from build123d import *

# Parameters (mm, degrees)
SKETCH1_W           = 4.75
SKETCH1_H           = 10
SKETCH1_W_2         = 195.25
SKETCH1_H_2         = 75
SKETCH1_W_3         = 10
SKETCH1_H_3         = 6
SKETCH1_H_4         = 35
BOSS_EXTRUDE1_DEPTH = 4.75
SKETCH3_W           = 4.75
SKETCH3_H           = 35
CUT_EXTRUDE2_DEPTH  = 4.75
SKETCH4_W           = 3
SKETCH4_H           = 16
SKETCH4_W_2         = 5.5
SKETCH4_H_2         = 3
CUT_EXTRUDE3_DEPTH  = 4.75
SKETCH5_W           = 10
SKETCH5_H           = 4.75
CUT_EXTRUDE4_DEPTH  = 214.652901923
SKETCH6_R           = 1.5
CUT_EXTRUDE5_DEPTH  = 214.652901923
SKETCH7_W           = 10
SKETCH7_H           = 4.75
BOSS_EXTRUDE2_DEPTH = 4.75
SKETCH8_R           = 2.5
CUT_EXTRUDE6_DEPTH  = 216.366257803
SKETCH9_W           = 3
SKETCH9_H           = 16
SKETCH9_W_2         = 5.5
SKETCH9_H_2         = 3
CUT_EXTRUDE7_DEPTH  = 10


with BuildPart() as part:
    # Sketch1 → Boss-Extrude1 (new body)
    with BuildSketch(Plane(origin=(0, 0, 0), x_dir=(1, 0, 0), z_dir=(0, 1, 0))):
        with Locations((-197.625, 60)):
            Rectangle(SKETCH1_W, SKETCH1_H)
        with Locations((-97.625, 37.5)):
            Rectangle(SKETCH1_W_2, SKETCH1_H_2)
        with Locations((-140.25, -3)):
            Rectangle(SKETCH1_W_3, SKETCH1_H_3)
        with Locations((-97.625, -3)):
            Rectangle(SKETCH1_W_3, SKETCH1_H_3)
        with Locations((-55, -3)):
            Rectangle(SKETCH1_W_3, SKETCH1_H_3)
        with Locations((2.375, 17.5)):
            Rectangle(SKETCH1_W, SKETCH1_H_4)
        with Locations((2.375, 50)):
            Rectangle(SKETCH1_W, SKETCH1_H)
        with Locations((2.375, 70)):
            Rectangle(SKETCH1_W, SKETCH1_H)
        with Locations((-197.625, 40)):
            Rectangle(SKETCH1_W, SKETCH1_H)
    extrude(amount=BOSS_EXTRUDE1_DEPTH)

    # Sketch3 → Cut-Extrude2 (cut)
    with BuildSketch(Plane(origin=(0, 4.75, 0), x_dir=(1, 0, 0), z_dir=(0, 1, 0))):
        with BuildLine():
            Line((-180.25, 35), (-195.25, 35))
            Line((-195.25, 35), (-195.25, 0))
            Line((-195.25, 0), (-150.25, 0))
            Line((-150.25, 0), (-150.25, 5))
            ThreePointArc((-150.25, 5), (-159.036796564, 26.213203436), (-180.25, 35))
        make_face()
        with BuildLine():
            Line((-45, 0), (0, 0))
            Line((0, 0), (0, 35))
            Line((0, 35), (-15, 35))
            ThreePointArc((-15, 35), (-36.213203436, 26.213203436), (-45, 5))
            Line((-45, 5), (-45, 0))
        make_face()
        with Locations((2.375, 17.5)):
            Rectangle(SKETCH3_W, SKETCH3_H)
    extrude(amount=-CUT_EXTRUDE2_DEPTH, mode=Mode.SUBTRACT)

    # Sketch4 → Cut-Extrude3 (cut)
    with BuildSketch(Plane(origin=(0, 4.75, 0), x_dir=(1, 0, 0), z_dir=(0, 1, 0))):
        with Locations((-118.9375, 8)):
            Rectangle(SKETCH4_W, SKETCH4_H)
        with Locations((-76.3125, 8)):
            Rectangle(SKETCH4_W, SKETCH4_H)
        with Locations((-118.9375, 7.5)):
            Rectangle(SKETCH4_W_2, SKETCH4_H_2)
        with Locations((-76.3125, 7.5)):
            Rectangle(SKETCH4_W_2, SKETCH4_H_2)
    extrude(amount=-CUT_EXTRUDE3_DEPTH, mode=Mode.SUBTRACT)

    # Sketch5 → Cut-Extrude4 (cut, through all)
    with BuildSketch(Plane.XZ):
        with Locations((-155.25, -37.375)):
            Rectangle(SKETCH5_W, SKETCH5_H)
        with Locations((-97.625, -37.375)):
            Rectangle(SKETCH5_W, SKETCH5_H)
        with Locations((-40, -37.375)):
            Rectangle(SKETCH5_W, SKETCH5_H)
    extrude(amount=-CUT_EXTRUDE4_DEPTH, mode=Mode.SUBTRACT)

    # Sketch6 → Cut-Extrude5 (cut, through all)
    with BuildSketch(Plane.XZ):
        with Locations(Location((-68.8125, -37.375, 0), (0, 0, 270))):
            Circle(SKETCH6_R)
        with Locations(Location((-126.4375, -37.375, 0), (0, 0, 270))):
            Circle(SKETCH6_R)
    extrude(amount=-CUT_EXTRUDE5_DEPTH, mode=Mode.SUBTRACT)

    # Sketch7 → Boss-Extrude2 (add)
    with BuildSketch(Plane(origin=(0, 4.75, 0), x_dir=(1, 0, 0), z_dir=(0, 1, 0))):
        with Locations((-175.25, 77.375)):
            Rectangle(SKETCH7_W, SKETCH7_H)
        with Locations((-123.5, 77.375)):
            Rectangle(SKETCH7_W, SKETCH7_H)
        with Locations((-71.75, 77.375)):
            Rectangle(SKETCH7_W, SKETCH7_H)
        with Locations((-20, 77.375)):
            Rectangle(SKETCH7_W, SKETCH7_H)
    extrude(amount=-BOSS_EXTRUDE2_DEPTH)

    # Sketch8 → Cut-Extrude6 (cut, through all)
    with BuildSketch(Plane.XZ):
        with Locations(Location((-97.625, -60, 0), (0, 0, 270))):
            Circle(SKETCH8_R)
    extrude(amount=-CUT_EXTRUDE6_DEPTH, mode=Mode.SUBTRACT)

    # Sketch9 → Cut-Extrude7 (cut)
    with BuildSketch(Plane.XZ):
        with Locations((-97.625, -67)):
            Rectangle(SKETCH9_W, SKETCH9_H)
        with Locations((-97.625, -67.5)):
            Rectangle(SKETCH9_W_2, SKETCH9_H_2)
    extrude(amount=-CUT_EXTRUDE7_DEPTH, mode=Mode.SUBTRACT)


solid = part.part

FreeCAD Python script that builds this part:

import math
import FreeCAD as App
import Part
import Sketcher
from FreeCAD import Vector


def add_polygon(sketch, points):
    """Adds a closed chain of lines whose ends are joined by coincident constraints."""
    first, n = sketch.GeometryCount, len(points)
    for a, b in zip(points, points[1:] + points[:1]):
        sketch.addGeometry(Part.LineSegment(App.Vector(*a, 0), App.Vector(*b, 0)), False)
    for i in range(n):
        sketch.addConstraint(Sketcher.Constraint("Coincident", first + i, 2, first + (i + 1) % n, 1))

doc = App.newDocument("Part")
body = doc.addObject("PartDesign::Body", "Body")

# Sketch on XZ plane
sketch1 = body.newObject("Sketcher::SketchObject", "Sketch")
sketch1.AttachmentSupport = (doc.getObject("XZ_Plane"), [""])
sketch1.MapMode = "FlatFace"
add_polygon(sketch1, [(-200, -65), (-200, -55), (-195.2, -55), (-195.2, -45), (-200, -45), (-200, -35), (-195.2, -35), (-195.2, 0), (-145.2, 0), (-145.2, 6), (-135.2, 6), (-135.2, 0), (-102.6, 0), (-102.6, 6), (-92.6, 6), (-92.6, 0), (-60, 0), (-60, 6), (-50, 6), (-50, 0), (4.8, 0), (4.8, -35), (0, -35), (0, -45), (4.8, -45), (4.8, -55), (0, -55), (0, -65), (4.8, -65), (4.8, -75), (-195.2, -75), (-195.2, -65)])  # lines 0-31
sketch1.addConstraint([
    Sketcher.Constraint("Vertical", 0),
    Sketcher.Constraint("Horizontal", 1),
    Sketcher.Constraint("Vertical", 2),
    Sketcher.Constraint("Horizontal", 3),
    Sketcher.Constraint("Vertical", 4),
    Sketcher.Constraint("Horizontal", 5),
    Sketcher.Constraint("Vertical", 6),
    Sketcher.Constraint("Horizontal", 7),
    Sketcher.Constraint("Vertical", 8),
    Sketcher.Constraint("Horizontal", 9),
    Sketcher.Constraint("Vertical", 10),
    Sketcher.Constraint("Horizontal", 11),
    Sketcher.Constraint("Vertical", 12),
    Sketcher.Constraint("Horizontal", 13),
    Sketcher.Constraint("Vertical", 14),
    Sketcher.Constraint("Horizontal", 15),
    Sketcher.Constraint("Vertical", 16),
    Sketcher.Constraint("Horizontal", 17),
    Sketcher.Constraint("Vertical", 18),
    Sketcher.Constraint("Horizontal", 19),
    Sketcher.Constraint("Vertical", 20),
    Sketcher.Constraint("Horizontal", 21),
    Sketcher.Constraint("Vertical", 22),
    Sketcher.Constraint("Horizontal", 23),
    Sketcher.Constraint("Vertical", 24),
    Sketcher.Constraint("Horizontal", 25),
    Sketcher.Constraint("Vertical", 26),
    Sketcher.Constraint("Horizontal", 27),
    Sketcher.Constraint("Vertical", 28),
    Sketcher.Constraint("Horizontal", 29),
    Sketcher.Constraint("Vertical", 30),
    Sketcher.Constraint("Horizontal", 31),
    Sketcher.Constraint("PointOnObject", 6, 2, -1),
    Sketcher.Constraint("PointOnObject", 10, 2, -1),
    Sketcher.Constraint("PointOnObject", 14, 2, -1),
    Sketcher.Constraint("PointOnObject", 18, 2, -1),
    Sketcher.Constraint("PointOnObject", 21, 2, -2),
    Sketcher.Constraint("PointOnObject", 25, 2, -2),
    Sketcher.Constraint("Horizontal", 9, 2, 12, 2),
    Sketcher.Constraint("Horizontal", 13, 2, 16, 2),
    Sketcher.Constraint("Horizontal", 5, 2, 20, 2),
    Sketcher.Constraint("Horizontal", 3, 2, 22, 2),
    Sketcher.Constraint("Horizontal", 1, 2, 24, 2),
    Sketcher.Constraint("Horizontal", 27, 2, 30, 2),
    Sketcher.Constraint("Vertical", 0, 2, 3, 2),
    Sketcher.Constraint("Vertical", 2, 2, 5, 2),
    Sketcher.Constraint("Vertical", 20, 2, 23, 2),
    Sketcher.Constraint("Vertical", 24, 2, 27, 2),
    Sketcher.Constraint("Vertical", 6, 2, 29, 2),
    Sketcher.Constraint("Equal", 9, 13),
    Sketcher.Constraint("Equal", 11, 15),
    Sketcher.Constraint("Equal", 13, 17),
    Sketcher.Constraint("Equal", 5, 21),
    Sketcher.Constraint("Equal", 17, 0),
    Sketcher.Constraint("Equal", 0, 2),
    Sketcher.Constraint("Equal", 2, 4),
    Sketcher.Constraint("Equal", 26, 28),
    Sketcher.Constraint("DistanceX", 7, 1, 7, 2, 50.0),
    Sketcher.Constraint("DistanceX", 9, 1, 9, 2, 10.0),
    Sketcher.Constraint("DistanceX", 29, 2, 29, 1, 200.0),
    Sketcher.Constraint("DistanceY", 6, 1, 6, 2, 35.0),
    Sketcher.Constraint("DistanceY", 8, 1, 8, 2, 6.0),
    Sketcher.Constraint("DistanceX", 15, 2, -1, 1, 60.0),
    Sketcher.Constraint("DistanceX", 1, 1, 1, 2, 4.75),
])
pad1 = body.newObject("PartDesign::Pad", "Pad")
pad1.Profile = sketch1
pad1.Length = 4.75
pad1.Reversed = True

# Sketch on XZ plane
sketch2 = body.newObject("Sketcher::SketchObject", "Sketch001")
sketch2.AttachmentSupport = (doc.getObject("XZ_Plane"), [""])
sketch2.MapMode = "FlatFace"
sketch2.AttachmentOffset = App.Placement(Vector(0, 0, -4.75), App.Rotation())
sketch2.addGeometry([
    Part.LineSegment(Vector(-180, -35, 0), Vector(-195, -35, 0)),  # 0
    Part.LineSegment(Vector(-195, -35, 0), Vector(-195, 0, 0)),  # 1
    Part.LineSegment(Vector(-195, 0, 0), Vector(-150, 0, 0)),  # 2
    Part.LineSegment(Vector(-150, 0, 0), Vector(-150, -5, 0)),  # 3
    Part.ArcOfCircle(Part.Circle(Vector(-180, -5, 0), Vector(0, 0, 1), 30), math.radians(-90), math.radians(0)),  # 4
    Part.LineSegment(Vector(-45, 0, 0), Vector(5, 0, 0)),  # 5
    Part.LineSegment(Vector(5, 0, 0), Vector(5, -35, 0)),  # 6
    Part.LineSegment(Vector(5, -35, 0), Vector(-15, -35, 0)),  # 7
    Part.ArcOfCircle(Part.Circle(Vector(-15, -5, 0), Vector(0, 0, 1), 30), math.radians(180), math.radians(270)),  # 8
    Part.LineSegment(Vector(-45, -5, 0), Vector(-45, 0, 0)),  # 9
], False)
sketch2.addConstraint([
    Sketcher.Constraint("Coincident", 0, 2, 1, 1),
    Sketcher.Constraint("Coincident", 1, 2, 2, 1),
    Sketcher.Constraint("Coincident", 2, 2, 3, 1),
    Sketcher.Constraint("Tangent", 3, 2, 4, 2),
    Sketcher.Constraint("Tangent", 4, 1, 0, 1),
    Sketcher.Constraint("Coincident", 5, 2, 6, 1),
    Sketcher.Constraint("Coincident", 6, 2, 7, 1),
    Sketcher.Constraint("Tangent", 7, 2, 8, 2),
    Sketcher.Constraint("Tangent", 8, 1, 9, 1),
    Sketcher.Constraint("Coincident", 9, 2, 5, 1),
    Sketcher.Constraint("Horizontal", 0),
    Sketcher.Constraint("Vertical", 1),
    Sketcher.Constraint("Horizontal", 2),
    Sketcher.Constraint("Vertical", 3),
    Sketcher.Constraint("Horizontal", 5),
    Sketcher.Constraint("Vertical", 6),
    Sketcher.Constraint("Horizontal", 7),
    Sketcher.Constraint("Vertical", 9),
    Sketcher.Constraint("Equal", 4, 8),
    Sketcher.Constraint("PointOnObject", 1, 2, -1),
    Sketcher.Constraint("PointOnObject", 5, 2, -1),
    Sketcher.Constraint("Horizontal", 4, 3, 8, 3),
    Sketcher.Constraint("Radius", 4, 30.0),
    Sketcher.Constraint("DistanceX", 0, 2, 0, 1, 15.0),
    Sketcher.Constraint("DistanceY", 1, 1, 1, 2, 35.0),
    Sketcher.Constraint("DistanceX", 8, 3, -1, 1, 15.0),
    Sketcher.Constraint("DistanceX", 2, 2, 5, 2, 155.0),
    Sketcher.Constraint("DistanceX", 5, 1, 5, 2, 49.75),
])
pocket1 = body.newObject("PartDesign::Pocket", "Pocket")
pocket1.Profile = sketch2
pocket1.Length = 4.75
pocket1.Reversed = True

# Sketch on XZ plane
sketch3 = body.newObject("Sketcher::SketchObject", "Sketch002")
sketch3.AttachmentSupport = (doc.getObject("XZ_Plane"), [""])
sketch3.MapMode = "FlatFace"
sketch3.AttachmentOffset = App.Placement(Vector(0, 0, -4.75), App.Rotation())
add_polygon(sketch3, [(-120.4, -6), (-120.4, 0), (-117.4, 0), (-117.4, -6), (-116.2, -6), (-116.2, -9), (-117.4, -9), (-117.4, -16), (-120.4, -16), (-120.4, -9), (-121.7, -9), (-121.7, -6)])  # lines 0-11
add_polygon(sketch3, [(-77.8, -6), (-77.8, 0), (-74.8, 0), (-74.8, -6), (-73.6, -6), (-73.6, -9), (-74.8, -9), (-74.8, -16), (-77.8, -16), (-77.8, -9), (-79.1, -9), (-79.1, -6)])  # lines 12-23
sketch3.addConstraint([
    Sketcher.Constraint("Vertical", 0),
    Sketcher.Constraint("Horizontal", 1),
    Sketcher.Constraint("Vertical", 2),
    Sketcher.Constraint("Horizontal", 3),
    Sketcher.Constraint("Vertical", 4),
    Sketcher.Constraint("Horizontal", 5),
    Sketcher.Constraint("Vertical", 6),
    Sketcher.Constraint("Horizontal", 7),
    Sketcher.Constraint("Vertical", 8),
    Sketcher.Constraint("Horizontal", 9),
    Sketcher.Constraint("Vertical", 10),
    Sketcher.Constraint("Horizontal", 11),
    Sketcher.Constraint("Vertical", 12),
    Sketcher.Constraint("Horizontal", 13),
    Sketcher.Constraint("Vertical", 14),
    Sketcher.Constraint("Horizontal", 15),
    Sketcher.Constraint("Vertical", 16),
    Sketcher.Constraint("Horizontal", 17),
    Sketcher.Constraint("Vertical", 18),
    Sketcher.Constraint("Horizontal", 19),
    Sketcher.Constraint("Vertical", 20),
    Sketcher.Constraint("Horizontal", 21),
    Sketcher.Constraint("Vertical", 22),
    Sketcher.Constraint("Horizontal", 23),
    Sketcher.Constraint("PointOnObject", 0, 2, -1),
    Sketcher.Constraint("PointOnObject", 12, 2, -1),
    Sketcher.Constraint("Horizontal", 5, 2, 8, 2),
    Sketcher.Constraint("Horizontal", 3, 2, 10, 2),
    Sketcher.Constraint("Horizontal", 11, 2, 14, 2),
    Sketcher.Constraint("Horizontal", 9, 2, 16, 2),
    Sketcher.Constraint("Horizontal", 7, 2, 18, 2),
    Sketcher.Constraint("Horizontal", 17, 2, 20, 2),
    Sketcher.Constraint("Horizontal", 15, 2, 22, 2),
    Sketcher.Constraint("Vertical", 2, 2, 5, 2),
    Sketcher.Constraint("Vertical", 0, 2, 7, 2),
    Sketcher.Constraint("Vertical", 14, 2, 17, 2),
    Sketcher.Constraint("Vertical", 12, 2, 19, 2),
    Sketcher.Constraint("Equal", 5, 9),
    Sketcher.Constraint("Equal", 7, 13),
    Sketcher.Constraint("Equal", 11, 15),
    Sketcher.Constraint("Equal", 17, 21),
    Sketcher.Constraint("Equal", 19, 4),
    Sketcher.Constraint("DistanceX", 1, 1, 1, 2, 3.0),
    Sketcher.Constraint("DistanceY", 0, 1, 0, 2, 6.0),
    Sketcher.Constraint("DistanceY", 6, 2, 6, 1, 7.0),
    Sketcher.Constraint("DistanceX", 3, 1, 3, 2, 1.25),
    Sketcher.Constraint("DistanceX", 3, 2, 12, 2, 38.375),
    Sketcher.Constraint("DistanceX", 0, 2, -1, 1, 120.4375),
])
pocket2 = body.newObject("PartDesign::Pocket", "Pocket001")
pocket2.Profile = sketch3
pocket2.Length = 4.75
pocket2.Reversed = True

# Sketch on XZ plane
sketch4 = body.newObject("Sketcher::SketchObject", "Sketch003")
sketch4.AttachmentSupport = (doc.getObject("XZ_Plane"), [""])
sketch4.MapMode = "FlatFace"
add_polygon(sketch4, [(-160.2, -35), (-160.2, -39.8), (-150.2, -39.8), (-150.2, -35)])  # lines 0-3
add_polygon(sketch4, [(-102.6, -35), (-102.6, -39.8), (-92.6, -39.8), (-92.6, -35)])  # lines 4-7
add_polygon(sketch4, [(-45, -35), (-45, -39.8), (-35, -39.8), (-35, -35)])  # lines 8-11
sketch4.addConstraint([
    Sketcher.Constraint("Vertical", 0),
    Sketcher.Constraint("Horizontal", 1),
    Sketcher.Constraint("Vertical", 2),
    Sketcher.Constraint("Horizontal", 3),
    Sketcher.Constraint("Vertical", 4),
    Sketcher.Constraint("Horizontal", 5),
    Sketcher.Constraint("Vertical", 6),
    Sketcher.Constraint("Horizontal", 7),
    Sketcher.Constraint("Vertical", 8),
    Sketcher.Constraint("Horizontal", 9),
    Sketcher.Constraint("Vertical", 10),
    Sketcher.Constraint("Horizontal", 11),
    Sketcher.Constraint("Horizontal", 1, 2, 4, 2),
    Sketcher.Constraint("Horizontal", 3, 2, 6, 2),
    Sketcher.Constraint("Horizontal", 5, 2, 8, 2),
    Sketcher.Constraint("Horizontal", 7, 2, 10, 2),
    Sketcher.Constraint("Equal", 3, 5),
    Sketcher.Constraint("Equal", 7, 9),
    Sketcher.Constraint("DistanceX", 1, 1, 1, 2, 10.0),
    Sketcher.Constraint("DistanceY", 2, 2, -1, 1, 35.0),
    Sketcher.Constraint("DistanceX", 8, 2, -1, 1, 45.0),
    Sketcher.Constraint("DistanceY", 0, 2, 0, 1, 4.75),
    Sketcher.Constraint("DistanceX", 0, 2, -1, 1, 160.25),
    Sketcher.Constraint("DistanceX", 4, 2, -1, 1, 102.625),
])
pocket3 = body.newObject("PartDesign::Pocket", "Pocket002")
pocket3.Profile = sketch4
pocket3.Type = "ThroughAll"

# Sketch on XZ plane
sketch5 = body.newObject("Sketcher::SketchObject", "Sketch004")
sketch5.AttachmentSupport = (doc.getObject("XZ_Plane"), [""])
sketch5.MapMode = "FlatFace"
sketch5.addGeometry([
    Part.Circle(Vector(-68.8, -37.4, 0), Vector(0, 0, 1), 1.5),
    Part.Circle(Vector(-126.4, -37.4, 0), Vector(0, 0, 1), 1.5),
], False)
sketch5.addConstraint([
    Sketcher.Constraint("Equal", 0, 1),
    Sketcher.Constraint("Horizontal", 0, 3, 1, 3),
    Sketcher.Constraint("Diameter", 0, 3.0),
    Sketcher.Constraint("DistanceY", 0, 3, -1, 1, 37.375),
    Sketcher.Constraint("DistanceX", 1, 3, 0, 3, 57.625),
    Sketcher.Constraint("DistanceX", 0, 3, -1, 1, 68.8125),
])
pocket4 = body.newObject("PartDesign::Pocket", "Pocket003")
pocket4.Profile = sketch5
pocket4.Type = "ThroughAll"

# Sketch on XZ plane
sketch6 = body.newObject("Sketcher::SketchObject", "Sketch005")
sketch6.AttachmentSupport = (doc.getObject("XZ_Plane"), [""])
sketch6.MapMode = "FlatFace"
sketch6.AttachmentOffset = App.Placement(Vector(0, 0, -4.75), App.Rotation())
add_polygon(sketch6, [(-180.2, -79.8), (-180.2, -75), (-170.2, -75), (-170.2, -79.8)])  # lines 0-3
add_polygon(sketch6, [(-128.5, -79.8), (-128.5, -75), (-118.5, -75), (-118.5, -79.8)])  # lines 4-7
add_polygon(sketch6, [(-76.8, -79.8), (-76.8, -75), (-66.8, -75), (-66.8, -79.8)])  # lines 8-11
add_polygon(sketch6, [(-25, -79.8), (-25, -75), (-15, -75), (-15, -79.8)])  # lines 12-15
sketch6.addConstraint([
    Sketcher.Constraint("Vertical", 0),
    Sketcher.Constraint("Horizontal", 1),
    Sketcher.Constraint("Vertical", 2),
    Sketcher.Constraint("Horizontal", 3),
    Sketcher.Constraint("Vertical", 4),
    Sketcher.Constraint("Horizontal", 5),
    Sketcher.Constraint("Vertical", 6),
    Sketcher.Constraint("Horizontal", 7),
    Sketcher.Constraint("Vertical", 8),
    Sketcher.Constraint("Horizontal", 9),
    Sketcher.Constraint("Vertical", 10),
    Sketcher.Constraint("Horizontal", 11),
    Sketcher.Constraint("Vertical", 12),
    Sketcher.Constraint("Horizontal", 13),
    Sketcher.Constraint("Vertical", 14),
    Sketcher.Constraint("Horizontal", 15),
    Sketcher.Constraint("Horizontal", 1, 2, 4, 2),
    Sketcher.Constraint("Horizontal", 3, 2, 6, 2),
    Sketcher.Constraint("Horizontal", 5, 2, 8, 2),
    Sketcher.Constraint("Horizontal", 7, 2, 10, 2),
    Sketcher.Constraint("Horizontal", 9, 2, 12, 2),
    Sketcher.Constraint("Horizontal", 11, 2, 14, 2),
    Sketcher.Constraint("Equal", 3, 5),
    Sketcher.Constraint("Equal", 7, 9),
    Sketcher.Constraint("Equal", 11, 13),
    Sketcher.Constraint("DistanceX", 1, 1, 1, 2, 10.0),
    Sketcher.Constraint("DistanceY", 0, 2, -1, 1, 75.0),
    Sketcher.Constraint("DistanceX", 12, 2, -1, 1, 25.0),
    Sketcher.Constraint("DistanceY", 0, 1, 0, 2, 4.75),
    Sketcher.Constraint("DistanceX", 4, 2, -1, 1, 128.5),
    Sketcher.Constraint("DistanceX", 1, 2, 8, 2, 93.5),
    Sketcher.Constraint("DistanceX", 0, 2, -1, 1, 180.25),
])
pad2 = body.newObject("PartDesign::Pad", "Pad001")
pad2.Profile = sketch6
pad2.Length = 4.75

# Sketch on XZ plane
sketch7 = body.newObject("Sketcher::SketchObject", "Sketch006")
sketch7.AttachmentSupport = (doc.getObject("XZ_Plane"), [""])
sketch7.MapMode = "FlatFace"
sketch7.addGeometry(Part.Circle(Vector(-97.6, -60, 0), Vector(0, 0, 1), 2.5), False)
sketch7.addConstraint([
    Sketcher.Constraint("Diameter", 0, 5.0),
    Sketcher.Constraint("DistanceY", 0, 3, -1, 1, 60.0),
    Sketcher.Constraint("DistanceX", 0, 3, -1, 1, 97.625),
])
pocket5 = body.newObject("PartDesign::Pocket", "Pocket004")
pocket5.Profile = sketch7
pocket5.Type = "ThroughAll"

# Sketch on XZ plane
sketch8 = body.newObject("Sketcher::SketchObject", "Sketch007")
sketch8.AttachmentSupport = (doc.getObject("XZ_Plane"), [""])
sketch8.MapMode = "FlatFace"
add_polygon(sketch8, [(-99.1, -69), (-99.1, -75), (-96.1, -75), (-96.1, -69), (-94.9, -69), (-94.9, -66), (-96.1, -66), (-96.1, -59), (-99.1, -59), (-99.1, -66), (-100.4, -66), (-100.4, -69)])  # lines 0-11
sketch8.addConstraint([
    Sketcher.Constraint("Vertical", 0),
    Sketcher.Constraint("Horizontal", 1),
    Sketcher.Constraint("Vertical", 2),
    Sketcher.Constraint("Horizontal", 3),
    Sketcher.Constraint("Vertical", 4),
    Sketcher.Constraint("Horizontal", 5),
    Sketcher.Constraint("Vertical", 6),
    Sketcher.Constraint("Horizontal", 7),
    Sketcher.Constraint("Vertical", 8),
    Sketcher.Constraint("Horizontal", 9),
    Sketcher.Constraint("Vertical", 10),
    Sketcher.Constraint("Horizontal", 11),
    Sketcher.Constraint("Horizontal", 5, 2, 8, 2),
    Sketcher.Constraint("Horizontal", 3, 2, 10, 2),
    Sketcher.Constraint("Vertical", 2, 2, 5, 2),
    Sketcher.Constraint("Vertical", 0, 2, 7, 2),
    Sketcher.Constraint("Equal", 5, 9),
    Sketcher.Constraint("Equal", 7, 4),
    Sketcher.Constraint("DistanceX", 1, 1, 1, 2, 3.0),
    Sketcher.Constraint("DistanceY", 0, 2, 0, 1, 6.0),
    Sketcher.Constraint("DistanceY", 6, 1, 6, 2, 7.0),
    Sketcher.Constraint("DistanceY", 0, 2, -1, 1, 75.0),
    Sketcher.Constraint("DistanceX", 3, 1, 3, 2, 1.25),
    Sketcher.Constraint("DistanceX", 0, 2, -1, 1, 99.125),
])
pocket6 = body.newObject("PartDesign::Pocket", "Pocket005")
pocket6.Profile = sketch8
pocket6.Length = 10

doc.recompute()
